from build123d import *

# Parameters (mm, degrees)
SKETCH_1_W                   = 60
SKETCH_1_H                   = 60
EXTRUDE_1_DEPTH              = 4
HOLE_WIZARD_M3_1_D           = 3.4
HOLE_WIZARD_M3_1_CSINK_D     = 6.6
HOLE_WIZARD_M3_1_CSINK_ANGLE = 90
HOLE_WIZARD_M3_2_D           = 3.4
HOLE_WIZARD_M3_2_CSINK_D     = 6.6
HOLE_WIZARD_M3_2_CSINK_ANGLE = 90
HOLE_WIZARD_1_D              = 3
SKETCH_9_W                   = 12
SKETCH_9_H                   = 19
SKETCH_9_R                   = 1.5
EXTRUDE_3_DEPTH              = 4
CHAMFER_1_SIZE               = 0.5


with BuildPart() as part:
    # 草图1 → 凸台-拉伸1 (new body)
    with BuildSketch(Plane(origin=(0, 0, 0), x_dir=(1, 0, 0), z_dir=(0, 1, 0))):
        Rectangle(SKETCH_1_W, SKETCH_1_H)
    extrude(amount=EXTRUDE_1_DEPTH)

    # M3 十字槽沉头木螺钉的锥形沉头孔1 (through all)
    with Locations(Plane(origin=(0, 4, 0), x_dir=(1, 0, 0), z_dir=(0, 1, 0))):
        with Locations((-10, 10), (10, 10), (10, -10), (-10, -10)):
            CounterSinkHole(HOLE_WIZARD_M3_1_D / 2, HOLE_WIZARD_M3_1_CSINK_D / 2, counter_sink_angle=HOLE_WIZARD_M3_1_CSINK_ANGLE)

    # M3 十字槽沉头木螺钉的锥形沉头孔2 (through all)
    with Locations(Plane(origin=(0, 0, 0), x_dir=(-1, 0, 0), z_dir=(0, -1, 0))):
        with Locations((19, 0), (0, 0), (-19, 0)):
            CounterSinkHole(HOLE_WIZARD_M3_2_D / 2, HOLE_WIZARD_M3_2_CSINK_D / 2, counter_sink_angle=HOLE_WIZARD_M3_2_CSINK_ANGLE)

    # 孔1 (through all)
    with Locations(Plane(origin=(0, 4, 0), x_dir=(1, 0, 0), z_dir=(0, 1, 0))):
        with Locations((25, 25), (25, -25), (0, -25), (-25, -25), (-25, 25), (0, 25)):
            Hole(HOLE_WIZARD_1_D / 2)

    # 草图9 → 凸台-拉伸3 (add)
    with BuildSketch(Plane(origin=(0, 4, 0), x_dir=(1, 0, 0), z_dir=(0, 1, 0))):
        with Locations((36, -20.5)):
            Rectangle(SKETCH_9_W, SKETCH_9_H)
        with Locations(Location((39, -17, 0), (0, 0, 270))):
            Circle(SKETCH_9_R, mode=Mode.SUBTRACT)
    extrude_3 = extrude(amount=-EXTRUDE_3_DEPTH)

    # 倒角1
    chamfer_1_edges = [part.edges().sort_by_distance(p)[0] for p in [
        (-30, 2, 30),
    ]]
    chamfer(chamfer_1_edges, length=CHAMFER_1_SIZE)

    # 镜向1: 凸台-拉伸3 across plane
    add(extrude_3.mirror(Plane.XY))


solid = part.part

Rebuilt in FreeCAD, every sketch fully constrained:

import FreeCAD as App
import Part
import Sketcher
Q = App.Units.Quantity


def edges_at(feature, points):
    """Names of the edges that pass closest to the given points."""
    edges = feature.Shape.Edges
    near = lambda p: min(range(len(edges)), key=lambda i: edges[i].distToShape(Part.Vertex(*p))[0])
    return sorted({f"Edge{near(p) + 1}" for p in points})


def add_polygon(sketch, points):
    """Adds a closed chain of lines whose ends are joined by coincident constraints."""
    first, n = sketch.GeometryCount, len(points)
    for a, b in zip(points, points[1:] + points[:1]):
        sketch.addGeometry(Part.LineSegment(App.Vector(*a, 0), App.Vector(*b, 0)), False)
    for i in range(n):
        sketch.addConstraint(Sketcher.Constraint("Coincident", first + i, 2, first + (i + 1) % n, 1))

doc = App.newDocument("Part")
params = doc.addObject("Spreadsheet::Sheet", "Params")
for row, (alias, value) in enumerate([
    ("sketch1_width", "60 mm"),
    ("pad1_length", "4 mm"),
    ("sketch2_diameter", "3.4 mm"),
    ("hole_diameter", "3.4 mm"),
    ("hole_csink_diameter", "6.6 mm"),
    ("sketch3_diameter", "3.4 mm"),
    ("hole2_diameter", "3.4 mm"),
    ("hole2_csink_diameter", "6.6 mm"),
    ("sketch4_diameter", "3 mm"),
    ("hole3_diameter", "3 mm"),
    ("sketch5_diameter", "3 mm"),
    ("sketch5_width", "12 mm"),
    ("sketch5_height", "19 mm"),
    ("pad2_length", "4 mm"),
    ("chamfer_size", "0.5 mm"),
], start=1):
    params.set(f"A{row}", alias)
    params.set(f"B{row}", "=" + value)
    params.setAlias(f"B{row}", alias)

body = doc.addObject("PartDesign::Body", "Body")

# Sketch on XZ plane
sketch1 = body.newObject("Sketcher::SketchObject", "Sketch")
sketch1.AttachmentSupport = (doc.getObject("XZ_Plane"), [""])
sketch1.MapMode = "FlatFace"
add_polygon(sketch1, [(-30, -30), (-30, 30), (30, 30), (30, -30)])  # lines 0-3
sketch1.addConstraint(Sketcher.Constraint("Vertical", 0))
sketch1.addConstraint(Sketcher.Constraint("Horizontal", 1))
sketch1.addConstraint(Sketcher.Constraint("Vertical", 2))
sketch1.addConstraint(Sketcher.Constraint("Horizontal", 3))
sketch1.addConstraint(Sketcher.Constraint("Symmetric", 0, 2, 2, 2, -1, 1))
sketch1.addConstraint(Sketcher.Constraint("Equal", 3, 0))
sketch1.addConstraint(Sketcher.Constraint("DistanceX", 1, 1, 1, 2, Q("60 mm")))
sketch1.setExpression("Constraints[10]", "Params.sketch1_width")
pad1 = body.newObject("PartDesign::Pad", "Pad")
pad1.Profile = sketch1
pad1.setExpression("Length", "Params.pad1_length")
pad1.Reversed = True

# Sketch on XZ plane
sketch2 = body.newObject("Sketcher::SketchObject", "Sketch001")
sketch2.AttachmentSupport = (doc.getObject("XZ_Plane"), [""])
sketch2.MapMode = "FlatFace"
sketch2.AttachmentOffset = App.Placement(App.Vector(0, 0, -4), App.Rotation())
sketch2.addGeometry(Part.Circle(App.Vector(-10, -10, 0), App.Vector(0, 0, 1), 1.7), False)
sketch2.addGeometry(Part.Circle(App.Vector(10, -10, 0), App.Vector(0, 0, 1), 1.7), False)
sketch2.addGeometry(Part.Circle(App.Vector(10, 10, 0), App.Vector(0, 0, 1), 1.7), False)
sketch2.addGeometry(Part.Circle(App.Vector(-10, 10, 0), App.Vector(0, 0, 1), 1.7), False)
sketch2.addConstraint(Sketcher.Constraint("Equal", 0, 1))
sketch2.addConstraint(Sketcher.Constraint("Equal", 1, 2))
sketch2.addConstraint(Sketcher.Constraint("Equal", 2, 3))
sketch2.addConstraint(Sketcher.Constraint("Symmetric", 0, 3, 2, 3, -1, 1))
sketch2.addConstraint(Sketcher.Constraint("Symmetric", 1, 3, 3, 3, -1, 1))
sketch2.addConstraint(Sketcher.Constraint("Symmetric", 0, 3, 1, 3, -2))
sketch2.addConstraint(Sketcher.Constraint("Diameter", 0, Q("3.4 mm")))
sketch2.addConstraint(Sketcher.Constraint("DistanceX", 0, 3, -1, 1, Q("10 mm")))
sketch2.addConstraint(Sketcher.Constraint("DistanceY", 0, 3, -1, 1, Q("10 mm")))
sketch2.setExpression("Constraints[6]", "Params.sketch2_diameter")
doc.recompute()
hole = body.newObject("PartDesign::Hole", "Hole")
hole.Profile = sketch2
hole.ThreadType = "None"
hole.setExpression("Diameter", "Params.hole_diameter")
hole.DepthType = "ThroughAll"
hole.HoleCutType = "Countersink"
hole.setExpression("HoleCutDiameter", "Params.hole_csink_diameter")
hole.HoleCutCountersinkAngle = 90
hole.Reversed = True

# Sketch on XZ plane
sketch3 = body.newObject("Sketcher::SketchObject", "Sketch002")
sketch3.AttachmentSupport = (doc.getObject("XZ_Plane"), [""])
sketch3.MapMode = "FlatFace"
sketch3.addGeometry(Part.Circle(App.Vector(-19, 0, 0), App.Vector(0, 0, 1), 1.7), False)
sketch3.addGeometry(Part.Circle(App.Vector(0, 0, 0), App.Vector(0, 0, 1), 1.7), False)
sketch3.addGeometry(Part.Circle(App.Vector(19, 0, 0), App.Vector(0, 0, 1), 1.7), False)
sketch3.addConstraint(Sketcher.Constraint("Coincident", 1, 3, -1, 1))
sketch3.addConstraint(Sketcher.Constraint("Equal", 0, 1))
sketch3.addConstraint(Sketcher.Constraint("Equal", 1, 2))
sketch3.addConstraint(Sketcher.Constraint("Symmetric", 0, 3, 2, 3, -1, 1))
sketch3.addConstraint(Sketcher.Constraint("PointOnObject", 0, 3, -1))
sketch3.addConstraint(Sketcher.Constraint("Diameter", 0, Q("3.4 mm")))
sketch3.addConstraint(Sketcher.Constraint("DistanceX", 0, 3, -1, 1, Q("19 mm")))
sketch3.setExpression("Constraints[5]", "Params.sketch3_diameter")
doc.recompute()
hole2 = body.newObject("PartDesign::Hole", "Hole001")
hole2.Profile = sketch3
hole2.ThreadType = "None"
hole2.setExpression("Diameter", "Params.hole2_diameter")
hole2.DepthType = "ThroughAll"
hole2.HoleCutType = "Countersink"
hole2.setExpression("HoleCutDiameter", "Params.hole2_csink_diameter")
hole2.HoleCutCountersinkAngle = 90

# Sketch on XZ plane
sketch4 = body.newObject("Sketcher::SketchObject", "Sketch003")
sketch4.AttachmentSupport = (doc.getObject("XZ_Plane"), [""])
sketch4.MapMode = "FlatFace"
sketch4.AttachmentOffset = App.Placement(App.Vector(0, 0, -4), App.Rotation())
sketch4.addGeometry(Part.Circle(App.Vector(25, -25, 0), App.Vector(0, 0, 1), 1.5), False)
sketch4.addGeometry(Part.Circle(App.Vector(25, 25, 0), App.Vector(0, 0, 1), 1.5), False)
sketch4.addGeometry(Part.Circle(App.Vector(0, 25, 0), App.Vector(0, 0, 1), 1.5), False)
sketch4.addGeometry(Part.Circle(App.Vector(-25, 25, 0), App.Vector(0, 0, 1), 1.5), False)
sketch4.addGeometry(Part.Circle(App.Vector(-25, -25, 0), App.Vector(0, 0, 1), 1.5), False)
sketch4.addGeometry(Part.Circle(App.Vector(0, -25, 0), App.Vector(0, 0, 1), 1.5), False)
sketch4.addConstraint(Sketcher.Constraint("Equal", 0, 1))
sketch4.addConstraint(Sketcher.Constraint("Equal", 1, 2))
sketch4.addConstraint(Sketcher.Constraint("Equal", 2, 3))
sketch4.addConstraint(Sketcher.Constraint("Equal", 3, 4))
sketch4.addConstraint(Sketcher.Constraint("Equal", 4, 5))
sketch4.addConstraint(Sketcher.Constraint("Symmetric", 0, 3, 3, 3, -1, 1))
sketch4.addConstraint(Sketcher.Constraint("Symmetric", 1, 3, 4, 3, -1, 1))
sketch4.addConstraint(Sketcher.Constraint("Symmetric", 2, 3, 5, 3, -1, 1))
sketch4.addConstraint(Sketcher.Constraint("Symmetric", 1, 3, 3, 3, -2))
sketch4.addConstraint(Sketcher.Constraint("PointOnObject", 2, 3, -2))
sketch4.addConstraint(Sketcher.Constraint("Horizontal", 1, 3, 2, 3))
sketch4.addConstraint(Sketcher.Constraint("Diameter", 0, Q("3 mm")))
sketch4.addConstraint(Sketcher.Constraint("DistanceX", -1, 1, 0, 3, Q("25 mm")))
sketch4.addConstraint(Sketcher.Constraint("DistanceY", 0, 3, -1, 1, Q("25 mm")))
sketch4.setExpression("Constraints[11]", "Params.sketch4_diameter")
doc.recompute()
hole3 = body.newObject("PartDesign::Hole", "Hole002")
hole3.Profile = sketch4
hole3.ThreadType = "None"
hole3.setExpression("Diameter", "Params.hole3_diameter")
hole3.DepthType = "ThroughAll"
hole3.Reversed = True

# Sketch on XZ plane
sketch5 = body.newObject("Sketcher::SketchObject", "Sketch004")
sketch5.AttachmentSupport = (doc.getObject("XZ_Plane"), [""])
sketch5.MapMode = "FlatFace"
sketch5.AttachmentOffset = App.Placement(App.Vector(0, 0, -4), App.Rotation())
add_polygon(sketch5, [(30, 11), (30, 30), (42, 30), (42, 11)])  # lines 0-3
sketch5.addGeometry(Part.Circle(App.Vector(39, 17, 0), App.Vector(0, 0, 1), 1.5), False)  # 4
sketch5.addConstraint(Sketcher.Constraint("Vertical", 0))
sketch5.addConstraint(Sketcher.Constraint("Horizontal", 1))
sketch5.addConstraint(Sketcher.Constraint("Vertical", 2))
sketch5.addConstraint(Sketcher.Constraint("Horizontal", 3))
sketch5.addConstraint(Sketcher.Constraint("Diameter", 4, Q("3 mm")))
sketch5.addConstraint(Sketcher.Constraint("DistanceX", 1, 1, 1, 2, Q("12 mm")))
sketch5.addConstraint(Sketcher.Constraint("DistanceY", 0, 1, 0, 2, Q("19 mm")))
sketch5.addConstraint(Sketcher.Constraint("DistanceX", -1, 1, 4, 3, Q("39 mm")))
sketch5.addConstraint(Sketcher.Constraint("DistanceY", -1, 1, 4, 3, Q("17 mm")))
sketch5.addConstraint(Sketcher.Constraint("DistanceX", -1, 1, 0, 2, Q("30 mm")))
sketch5.addConstraint(Sketcher.Constraint("DistanceY", -1, 1, 0, 2, Q("30 mm")))
sketch5.setExpression("Constraints[8]", "Params.sketch5_diameter")
sketch5.setExpression("Constraints[9]", "Params.sketch5_width")
sketch5.setExpression("Constraints[10]", "Params.sketch5_height")
pad2 = body.newObject("PartDesign::Pad", "Pad001")
pad2.Profile = sketch5
pad2.setExpression("Length", "Params.pad2_length")
doc.recompute()

chamfer = body.newObject("PartDesign::Chamfer", "Chamfer")
chamfer.Base = (pad2, edges_at(pad2, [(-30, 2, 30)]))
chamfer.setExpression("Size", "Params.chamfer_size")
doc.recompute()

mirrored = body.newObject("PartDesign::Mirrored", "Mirrored")
mirrored.Originals = [pad2]
mirrored.MirrorPlane = (doc.getObject("XY_Plane"), [""])
body.Tip = mirrored

doc.recompute()
